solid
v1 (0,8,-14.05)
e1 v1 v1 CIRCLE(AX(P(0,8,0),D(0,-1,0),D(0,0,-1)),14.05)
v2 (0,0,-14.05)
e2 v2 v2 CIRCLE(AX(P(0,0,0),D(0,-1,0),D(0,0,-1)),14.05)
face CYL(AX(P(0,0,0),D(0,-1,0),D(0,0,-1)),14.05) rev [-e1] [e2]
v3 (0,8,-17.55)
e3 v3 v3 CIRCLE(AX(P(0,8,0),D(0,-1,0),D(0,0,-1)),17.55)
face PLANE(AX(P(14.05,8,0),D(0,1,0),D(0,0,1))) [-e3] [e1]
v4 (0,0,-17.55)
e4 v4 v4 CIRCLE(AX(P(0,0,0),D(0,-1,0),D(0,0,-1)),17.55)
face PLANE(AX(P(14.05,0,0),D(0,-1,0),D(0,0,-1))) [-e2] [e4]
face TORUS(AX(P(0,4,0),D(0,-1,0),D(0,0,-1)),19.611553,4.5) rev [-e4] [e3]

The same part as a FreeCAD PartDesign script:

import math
import FreeCAD as App
import Part
import Sketcher
from FreeCAD import Vector
Q = App.Units.Quantity

doc = App.newDocument("Part")
params = doc.addObject("Spreadsheet::Sheet", "Params")
for row, (alias, value) in enumerate([
    ("sketch1_radius", "4.5 mm"),
    ("sketch1_height", "8 mm"),
    ("sketch1_width", "3.5 mm"),
    ("revolution_angle", "360 deg"),
], start=1):
    params.set(f"A{row}", alias)
    params.set(f"B{row}", "=" + value)
    params.setAlias(f"B{row}", alias)

body = doc.addObject("PartDesign::Body", "Body")

sketch1 = doc.addObject("Sketcher::SketchObject", "Sketch")
body.addObject(sketch1)
sketch1.AttachmentSupport = (doc.XY_Plane, [""])
sketch1.MapMode = "FlatFace"
sketch1.addGeometry([
    Part.LineSegment(Vector(14.1, 0, 0), Vector(17.6, 0, 0)),
    Part.ArcOfCircle(Part.Circle(Vector(19.6, 4, 0), Vector(0, 0, 1), 4.5), math.radians(117), math.radians(243)),
    Part.LineSegment(Vector(17.6, 8, 0), Vector(14.1, 8, 0)),
    Part.LineSegment(Vector(14.1, 8, 0), Vector(14.1, 0, 0)),
], False)
sketch1.addConstraint([
    Sketcher.Constraint("Coincident", 0, 2, 1, 2),
    Sketcher.Constraint("Coincident", 1, 1, 2, 1),
    Sketcher.Constraint("Coincident", 2, 2, 3, 1),
    Sketcher.Constraint("Coincident", 3, 2, 0, 1),
    Sketcher.Constraint("Horizontal", 0),
    Sketcher.Constraint("Horizontal", 2),
    Sketcher.Constraint("Vertical", 3),
    Sketcher.Constraint("PointOnObject", 0, 2, -1),
    Sketcher.Constraint("Vertical", 0, 2, 1, 1),
    Sketcher.Constraint("Radius", 1, Q("4.5 mm")),
    Sketcher.Constraint("DistanceY", 3, 2, 3, 1, Q("8 mm")),
    Sketcher.Constraint("DistanceX", 0, 1, 0, 2, Q("3.5 mm")),
    Sketcher.Constraint("DistanceX", -1, 1, 0, 2, Q("17.55 mm")),
])
sketch1.setExpression("Constraints[9]", "Params.sketch1_radius")
sketch1.setExpression("Constraints[10]", "Params.sketch1_height")
sketch1.setExpression("Constraints[11]", "Params.sketch1_width")
revolution = doc.addObject("PartDesign::Revolution", "Revolution")
body.addObject(revolution)
revolution.Profile = sketch1
revolution.ReferenceAxis = (sketch1, ["V_Axis"])
revolution.setExpression("Angle", "Params.revolution_angle")

doc.recompute()
